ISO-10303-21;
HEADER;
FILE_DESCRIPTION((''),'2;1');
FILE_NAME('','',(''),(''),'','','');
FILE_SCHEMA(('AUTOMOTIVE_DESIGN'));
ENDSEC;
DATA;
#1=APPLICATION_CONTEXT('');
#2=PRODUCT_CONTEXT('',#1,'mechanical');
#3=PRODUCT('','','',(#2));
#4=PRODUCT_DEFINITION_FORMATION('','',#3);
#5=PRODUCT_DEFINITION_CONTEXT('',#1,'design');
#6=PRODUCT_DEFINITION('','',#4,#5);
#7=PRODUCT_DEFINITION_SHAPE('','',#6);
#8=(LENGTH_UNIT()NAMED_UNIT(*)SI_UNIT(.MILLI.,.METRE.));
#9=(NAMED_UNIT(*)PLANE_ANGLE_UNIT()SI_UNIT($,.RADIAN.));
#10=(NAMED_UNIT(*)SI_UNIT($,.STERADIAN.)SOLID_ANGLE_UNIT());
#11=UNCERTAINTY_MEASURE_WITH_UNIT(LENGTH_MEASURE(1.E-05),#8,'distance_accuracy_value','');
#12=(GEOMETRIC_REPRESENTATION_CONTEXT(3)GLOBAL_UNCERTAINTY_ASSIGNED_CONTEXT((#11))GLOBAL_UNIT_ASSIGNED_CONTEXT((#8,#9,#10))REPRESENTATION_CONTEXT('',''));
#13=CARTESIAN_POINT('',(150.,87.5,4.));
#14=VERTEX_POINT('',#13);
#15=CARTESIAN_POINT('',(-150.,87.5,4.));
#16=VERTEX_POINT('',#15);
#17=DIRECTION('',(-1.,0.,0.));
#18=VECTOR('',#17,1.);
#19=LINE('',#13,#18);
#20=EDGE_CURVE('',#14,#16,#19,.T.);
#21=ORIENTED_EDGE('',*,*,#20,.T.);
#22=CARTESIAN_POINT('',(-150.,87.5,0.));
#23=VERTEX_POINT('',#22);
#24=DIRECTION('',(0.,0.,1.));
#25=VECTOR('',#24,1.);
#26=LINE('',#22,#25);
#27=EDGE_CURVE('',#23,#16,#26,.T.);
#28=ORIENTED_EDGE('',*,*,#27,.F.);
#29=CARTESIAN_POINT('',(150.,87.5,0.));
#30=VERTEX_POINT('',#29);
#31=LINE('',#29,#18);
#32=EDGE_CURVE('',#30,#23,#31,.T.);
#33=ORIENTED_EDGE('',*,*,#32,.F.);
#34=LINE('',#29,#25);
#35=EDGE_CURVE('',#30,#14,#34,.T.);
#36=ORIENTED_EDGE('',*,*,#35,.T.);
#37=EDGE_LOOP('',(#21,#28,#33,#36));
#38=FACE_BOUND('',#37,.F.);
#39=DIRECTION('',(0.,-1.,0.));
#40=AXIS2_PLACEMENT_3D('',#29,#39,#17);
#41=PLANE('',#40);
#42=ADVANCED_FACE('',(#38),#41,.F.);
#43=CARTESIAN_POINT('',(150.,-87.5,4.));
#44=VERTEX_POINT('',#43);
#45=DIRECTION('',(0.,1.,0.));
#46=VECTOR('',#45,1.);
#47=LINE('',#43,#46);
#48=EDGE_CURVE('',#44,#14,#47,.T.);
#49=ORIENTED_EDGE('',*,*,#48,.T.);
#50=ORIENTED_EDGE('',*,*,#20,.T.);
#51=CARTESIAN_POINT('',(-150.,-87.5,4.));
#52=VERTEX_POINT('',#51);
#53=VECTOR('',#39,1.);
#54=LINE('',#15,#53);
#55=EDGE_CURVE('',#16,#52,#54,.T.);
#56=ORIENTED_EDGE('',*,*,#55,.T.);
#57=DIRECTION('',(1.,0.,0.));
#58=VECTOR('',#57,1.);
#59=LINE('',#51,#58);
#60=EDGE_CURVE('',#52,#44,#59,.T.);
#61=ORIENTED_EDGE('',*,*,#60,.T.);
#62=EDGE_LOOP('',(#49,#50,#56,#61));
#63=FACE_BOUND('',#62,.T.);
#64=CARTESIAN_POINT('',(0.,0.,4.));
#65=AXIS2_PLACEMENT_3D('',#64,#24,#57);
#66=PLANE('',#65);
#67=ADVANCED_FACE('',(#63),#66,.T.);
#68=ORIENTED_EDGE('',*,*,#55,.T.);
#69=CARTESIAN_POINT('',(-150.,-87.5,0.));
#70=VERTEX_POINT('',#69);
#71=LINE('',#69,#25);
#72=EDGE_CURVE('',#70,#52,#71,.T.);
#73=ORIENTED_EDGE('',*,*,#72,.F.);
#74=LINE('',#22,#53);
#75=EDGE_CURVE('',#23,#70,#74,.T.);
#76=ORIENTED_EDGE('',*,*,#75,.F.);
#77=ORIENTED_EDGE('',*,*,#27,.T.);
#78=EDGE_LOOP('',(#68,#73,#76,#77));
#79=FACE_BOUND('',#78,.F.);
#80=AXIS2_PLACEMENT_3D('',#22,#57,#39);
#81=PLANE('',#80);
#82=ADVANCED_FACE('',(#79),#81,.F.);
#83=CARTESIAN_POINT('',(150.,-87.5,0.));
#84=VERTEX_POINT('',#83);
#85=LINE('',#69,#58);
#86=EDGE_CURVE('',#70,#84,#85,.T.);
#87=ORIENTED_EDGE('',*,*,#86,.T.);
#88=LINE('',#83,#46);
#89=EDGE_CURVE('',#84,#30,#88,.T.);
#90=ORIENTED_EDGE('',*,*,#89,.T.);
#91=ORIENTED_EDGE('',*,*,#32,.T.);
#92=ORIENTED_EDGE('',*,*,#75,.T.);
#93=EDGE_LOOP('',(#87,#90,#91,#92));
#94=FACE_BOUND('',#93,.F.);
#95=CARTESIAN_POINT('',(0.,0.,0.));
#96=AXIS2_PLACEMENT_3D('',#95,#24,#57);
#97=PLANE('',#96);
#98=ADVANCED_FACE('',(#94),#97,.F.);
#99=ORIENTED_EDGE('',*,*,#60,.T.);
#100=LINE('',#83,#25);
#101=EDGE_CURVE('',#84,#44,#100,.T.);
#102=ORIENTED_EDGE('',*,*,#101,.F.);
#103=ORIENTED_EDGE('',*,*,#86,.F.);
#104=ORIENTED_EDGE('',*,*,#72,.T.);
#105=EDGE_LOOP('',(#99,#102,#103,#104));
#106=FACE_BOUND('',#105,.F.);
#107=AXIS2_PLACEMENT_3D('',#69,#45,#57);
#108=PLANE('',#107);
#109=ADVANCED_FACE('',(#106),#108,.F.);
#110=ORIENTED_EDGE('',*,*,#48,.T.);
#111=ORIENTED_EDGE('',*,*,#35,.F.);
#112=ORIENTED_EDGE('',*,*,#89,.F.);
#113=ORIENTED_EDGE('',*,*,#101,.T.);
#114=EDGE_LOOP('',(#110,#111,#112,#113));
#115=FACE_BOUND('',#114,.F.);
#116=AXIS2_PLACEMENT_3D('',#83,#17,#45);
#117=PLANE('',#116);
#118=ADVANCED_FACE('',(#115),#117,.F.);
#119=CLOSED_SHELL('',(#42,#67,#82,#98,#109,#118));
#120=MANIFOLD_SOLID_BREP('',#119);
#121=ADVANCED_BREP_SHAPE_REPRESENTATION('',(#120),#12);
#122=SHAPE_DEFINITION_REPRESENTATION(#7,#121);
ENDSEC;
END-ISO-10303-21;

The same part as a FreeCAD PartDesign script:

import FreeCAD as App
import Part
import Sketcher

V = App.Vector


def add_polygon(sketch, points):
    """Adds a closed chain of lines whose ends are joined by coincident constraints."""
    first, n = sketch.GeometryCount, len(points)
    for a, b in zip(points, points[1:] + points[:1]):
        sketch.addGeometry(Part.LineSegment(App.Vector(*a, 0), App.Vector(*b, 0)), False)
    for i in range(n):
        sketch.addConstraint(Sketcher.Constraint("Coincident", first + i, 2, first + (i + 1) % n, 1))

doc = App.newDocument("Part")
body = doc.addObject("PartDesign::Body", "Body")

sketch1 = doc.addObject("Sketcher::SketchObject", "Sketch")
body.addObject(sketch1)
sketch1.AttachmentSupport = (doc.XY_Plane, [""])
sketch1.MapMode = "FlatFace"
add_polygon(sketch1, [(-150, -87.5), (150, -87.5), (150, 87.5), (-150, 87.5)])
sketch1.addConstraint([
    Sketcher.Constraint("Horizontal", 0),
    Sketcher.Constraint("Vertical", 1),
    Sketcher.Constraint("Horizontal", 2),
    Sketcher.Constraint("Vertical", 3),
    Sketcher.Constraint("Symmetric", 0, 2, 2, 2, -1, 1),
    Sketcher.Constraint("DistanceX", 0, 1, 0, 2, 300.0),
    Sketcher.Constraint("DistanceY", 1, 1, 1, 2, 175.0),
])
pad1 = doc.addObject("PartDesign::Pad", "Pad")
body.addObject(pad1)
pad1.Profile = sketch1
pad1.Length = 4

doc.recompute()
